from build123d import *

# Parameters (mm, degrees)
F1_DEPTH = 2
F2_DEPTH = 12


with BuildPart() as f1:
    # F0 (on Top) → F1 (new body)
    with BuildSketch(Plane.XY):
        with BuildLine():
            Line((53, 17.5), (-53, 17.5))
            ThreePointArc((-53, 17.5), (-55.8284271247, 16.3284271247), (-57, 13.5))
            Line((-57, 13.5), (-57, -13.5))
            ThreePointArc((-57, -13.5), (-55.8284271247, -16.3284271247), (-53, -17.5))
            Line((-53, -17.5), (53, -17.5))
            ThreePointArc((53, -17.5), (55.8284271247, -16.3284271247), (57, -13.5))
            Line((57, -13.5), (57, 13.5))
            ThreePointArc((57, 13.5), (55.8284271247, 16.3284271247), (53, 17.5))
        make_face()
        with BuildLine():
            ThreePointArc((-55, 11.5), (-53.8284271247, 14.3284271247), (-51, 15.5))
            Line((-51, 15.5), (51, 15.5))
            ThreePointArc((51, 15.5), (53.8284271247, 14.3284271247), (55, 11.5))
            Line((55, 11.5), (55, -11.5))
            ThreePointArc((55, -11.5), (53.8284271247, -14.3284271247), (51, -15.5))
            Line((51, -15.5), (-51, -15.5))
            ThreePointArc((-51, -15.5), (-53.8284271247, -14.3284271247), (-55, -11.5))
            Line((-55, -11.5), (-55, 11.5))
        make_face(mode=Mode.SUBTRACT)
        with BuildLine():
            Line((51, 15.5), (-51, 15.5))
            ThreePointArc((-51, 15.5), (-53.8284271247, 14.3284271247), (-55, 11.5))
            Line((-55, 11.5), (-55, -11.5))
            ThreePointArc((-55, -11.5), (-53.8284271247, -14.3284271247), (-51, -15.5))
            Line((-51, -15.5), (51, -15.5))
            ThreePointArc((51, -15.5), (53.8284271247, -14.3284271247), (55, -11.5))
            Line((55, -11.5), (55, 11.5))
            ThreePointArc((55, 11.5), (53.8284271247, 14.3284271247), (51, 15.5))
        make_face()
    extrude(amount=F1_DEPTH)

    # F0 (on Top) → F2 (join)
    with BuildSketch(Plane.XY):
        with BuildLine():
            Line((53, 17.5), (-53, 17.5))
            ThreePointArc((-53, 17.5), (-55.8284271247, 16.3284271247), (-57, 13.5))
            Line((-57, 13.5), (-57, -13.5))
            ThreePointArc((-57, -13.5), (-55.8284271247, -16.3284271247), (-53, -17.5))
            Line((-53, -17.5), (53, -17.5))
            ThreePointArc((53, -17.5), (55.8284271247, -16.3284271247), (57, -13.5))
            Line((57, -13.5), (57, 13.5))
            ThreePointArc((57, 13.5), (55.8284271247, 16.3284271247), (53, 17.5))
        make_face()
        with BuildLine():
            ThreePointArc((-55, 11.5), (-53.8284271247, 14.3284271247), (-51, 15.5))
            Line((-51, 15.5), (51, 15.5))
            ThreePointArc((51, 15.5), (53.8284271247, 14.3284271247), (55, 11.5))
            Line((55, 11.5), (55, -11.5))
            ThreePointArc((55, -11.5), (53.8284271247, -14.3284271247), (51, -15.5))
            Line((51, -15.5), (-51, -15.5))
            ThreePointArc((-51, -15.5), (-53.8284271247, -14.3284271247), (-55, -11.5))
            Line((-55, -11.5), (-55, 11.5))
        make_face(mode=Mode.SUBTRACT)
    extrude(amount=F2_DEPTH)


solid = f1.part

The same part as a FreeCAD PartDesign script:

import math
import FreeCAD as App
import Part
import Sketcher

V = App.Vector
Q = App.Units.Quantity

doc = App.newDocument("Part")
body = doc.addObject("PartDesign::Body", "Body")

# Sketch on XY plane
sketch1 = body.newObject("Sketcher::SketchObject", "Sketch")
sketch1.AttachmentSupport = (doc.getObject("XY_Plane"), [""])
sketch1.MapMode = "FlatFace"
sketch1.addGeometry(Part.LineSegment(V(53, 17.5, 0), V(-53, 17.5, 0)), False)
sketch1.addGeometry(Part.ArcOfCircle(Part.Circle(V(-53, 13.5, 0), V(0, 0, 1), 4), math.radians(90), math.radians(180)), False)
sketch1.addGeometry(Part.LineSegment(V(-57, 13.5, 0), V(-57, -13.5, 0)), False)
sketch1.addGeometry(Part.ArcOfCircle(Part.Circle(V(-53, -13.5, 0), V(0, 0, 1), 4), math.radians(180), math.radians(270)), False)
sketch1.addGeometry(Part.LineSegment(V(-53, -17.5, 0), V(53, -17.5, 0)), False)
sketch1.addGeometry(Part.ArcOfCircle(Part.Circle(V(53, -13.5, 0), V(0, 0, 1), 4), math.radians(-90), math.radians(0)), False)
sketch1.addGeometry(Part.LineSegment(V(57, -13.5, 0), V(57, 13.5, 0)), False)
sketch1.addGeometry(Part.ArcOfCircle(Part.Circle(V(53, 13.5, 0), V(0, 0, 1), 4), math.radians(0), math.radians(90)), False)
sketch1.addConstraint(Sketcher.Constraint("Tangent", 0, 2, 1, 1))
sketch1.addConstraint(Sketcher.Constraint("Tangent", 1, 2, 2, 1))
sketch1.addConstraint(Sketcher.Constraint("Tangent", 2, 2, 3, 1))
sketch1.addConstraint(Sketcher.Constraint("Tangent", 3, 2, 4, 1))
sketch1.addConstraint(Sketcher.Constraint("Tangent", 4, 2, 5, 1))
sketch1.addConstraint(Sketcher.Constraint("Tangent", 5, 2, 6, 1))
sketch1.addConstraint(Sketcher.Constraint("Tangent", 6, 2, 7, 1))
sketch1.addConstraint(Sketcher.Constraint("Tangent", 7, 2, 0, 1))
sketch1.addConstraint(Sketcher.Constraint("Horizontal", 0))
sketch1.addConstraint(Sketcher.Constraint("Vertical", 2))
sketch1.addConstraint(Sketcher.Constraint("Horizontal", 4))
sketch1.addConstraint(Sketcher.Constraint("Vertical", 6))
sketch1.addConstraint(Sketcher.Constraint("Equal", 1, 3))
sketch1.addConstraint(Sketcher.Constraint("Equal", 3, 5))
sketch1.addConstraint(Sketcher.Constraint("Equal", 5, 7))
sketch1.addConstraint(Sketcher.Constraint("Symmetric", 1, 3, 5, 3, -1, 1))
sketch1.addConstraint(Sketcher.Constraint("Radius", 1, Q("4 mm")))
sketch1.addConstraint(Sketcher.Constraint("DistanceX", 0, 2, 0, 1, Q("106 mm")))
sketch1.addConstraint(Sketcher.Constraint("DistanceY", 2, 2, 2, 1, Q("27 mm")))
pad1 = body.newObject("PartDesign::Pad", "Pad")
pad1.Profile = sketch1
pad1.Length = 2

# Sketch on XY plane
sketch2 = body.newObject("Sketcher::SketchObject", "Sketch001")
sketch2.AttachmentSupport = (doc.getObject("XY_Plane"), [""])
sketch2.MapMode = "FlatFace"
sketch2.addGeometry(Part.LineSegment(V(53, 17.5, 0), V(-53, 17.5, 0)), False)
sketch2.addGeometry(Part.ArcOfCircle(Part.Circle(V(-53, 13.5, 0), V(0, 0, 1), 4), math.radians(90), math.radians(180)), False)
sketch2.addGeometry(Part.LineSegment(V(-57, 13.5, 0), V(-57, -13.5, 0)), False)
sketch2.addGeometry(Part.ArcOfCircle(Part.Circle(V(-53, -13.5, 0), V(0, 0, 1), 4), math.radians(180), math.radians(270)), False)
sketch2.addGeometry(Part.LineSegment(V(-53, -17.5, 0), V(53, -17.5, 0)), False)
sketch2.addGeometry(Part.ArcOfCircle(Part.Circle(V(53, -13.5, 0), V(0, 0, 1), 4), math.radians(-90), math.radians(0)), False)
sketch2.addGeometry(Part.LineSegment(V(57, -13.5, 0), V(57, 13.5, 0)), False)
sketch2.addGeometry(Part.ArcOfCircle(Part.Circle(V(53, 13.5, 0), V(0, 0, 1), 4), math.radians(0), math.radians(90)), False)
sketch2.addGeometry(Part.LineSegment(V(-55, -11.5, 0), V(-55, 11.5, 0)), False)
sketch2.addGeometry(Part.ArcOfCircle(Part.Circle(V(-51, 11.5, 0), V(0, 0, 1), 4), math.radians(90), math.radians(180)), False)
sketch2.addGeometry(Part.LineSegment(V(-51, 15.5, 0), V(51, 15.5, 0)), False)
sketch2.addGeometry(Part.ArcOfCircle(Part.Circle(V(51, 11.5, 0), V(0, 0, 1), 4), math.radians(0), math.radians(90)), False)
sketch2.addGeometry(Part.LineSegment(V(55, 11.5, 0), V(55, -11.5, 0)), False)
sketch2.addGeometry(Part.ArcOfCircle(Part.Circle(V(51, -11.5, 0), V(0, 0, 1), 4), math.radians(-90), math.radians(0)), False)
sketch2.addGeometry(Part.LineSegment(V(51, -15.5, 0), V(-51, -15.5, 0)), False)
sketch2.addGeometry(Part.ArcOfCircle(Part.Circle(V(-51, -11.5, 0), V(0, 0, 1), 4), math.radians(180), math.radians(270)), False)
sketch2.addConstraint(Sketcher.Constraint("Tangent", 0, 2, 1, 1))
sketch2.addConstraint(Sketcher.Constraint("Tangent", 1, 2, 2, 1))
sketch2.addConstraint(Sketcher.Constraint("Tangent", 2, 2, 3, 1))
sketch2.addConstraint(Sketcher.Constraint("Tangent", 3, 2, 4, 1))
sketch2.addConstraint(Sketcher.Constraint("Tangent", 4, 2, 5, 1))
sketch2.addConstraint(Sketcher.Constraint("Tangent", 5, 2, 6, 1))
sketch2.addConstraint(Sketcher.Constraint("Tangent", 6, 2, 7, 1))
sketch2.addConstraint(Sketcher.Constraint("Tangent", 7, 2, 0, 1))
sketch2.addConstraint(Sketcher.Constraint("Tangent", 8, 2, 9, 2))
sketch2.addConstraint(Sketcher.Constraint("Tangent", 9, 1, 10, 1))
sketch2.addConstraint(Sketcher.Constraint("Tangent", 10, 2, 11, 2))
sketch2.addConstraint(Sketcher.Constraint("Tangent", 11, 1, 12, 1))
sketch2.addConstraint(Sketcher.Constraint("Tangent", 12, 2, 13, 2))
sketch2.addConstraint(Sketcher.Constraint("Tangent", 13, 1, 14, 1))
sketch2.addConstraint(Sketcher.Constraint("Tangent", 14, 2, 15, 2))
sketch2.addConstraint(Sketcher.Constraint("Tangent", 15, 1, 8, 1))
sketch2.addConstraint(Sketcher.Constraint("Horizontal", 0))
sketch2.addConstraint(Sketcher.Constraint("Vertical", 2))
sketch2.addConstraint(Sketcher.Constraint("Horizontal", 4))
sketch2.addConstraint(Sketcher.Constraint("Vertical", 6))
sketch2.addConstraint(Sketcher.Constraint("Vertical", 8))
sketch2.addConstraint(Sketcher.Constraint("Horizontal", 10))
sketch2.addConstraint(Sketcher.Constraint("Vertical", 12))
sketch2.addConstraint(Sketcher.Constraint("Horizontal", 14))
sketch2.addConstraint(Sketcher.Constraint("Equal", 1, 3))
sketch2.addConstraint(Sketcher.Constraint("Equal", 3, 5))
sketch2.addConstraint(Sketcher.Constraint("Equal", 5, 7))
sketch2.addConstraint(Sketcher.Constraint("Equal", 7, 9))
sketch2.addConstraint(Sketcher.Constraint("Equal", 9, 11))
sketch2.addConstraint(Sketcher.Constraint("Equal", 11, 13))
sketch2.addConstraint(Sketcher.Constraint("Equal", 13, 15))
sketch2.addConstraint(Sketcher.Constraint("Symmetric", 1, 3, 5, 3, -1, 1))
sketch2.addConstraint(Sketcher.Constraint("Symmetric", 9, 3, 13, 3, -1, 1))
sketch2.addConstraint(Sketcher.Constraint("Radius", 1, Q("4 mm")))
sketch2.addConstraint(Sketcher.Constraint("DistanceX", 0, 2, 0, 1, Q("106 mm")))
sketch2.addConstraint(Sketcher.Constraint("DistanceX", 10, 1, 10, 2, Q("102 mm")))
sketch2.addConstraint(Sketcher.Constraint("DistanceY", 2, 2, 2, 1, Q("27 mm")))
sketch2.addConstraint(Sketcher.Constraint("DistanceY", 8, 1, 8, 2, Q("23 mm")))
pad2 = body.newObject("PartDesign::Pad", "Pad001")
pad2.Profile = sketch2
pad2.Length = 12

doc.recompute()
